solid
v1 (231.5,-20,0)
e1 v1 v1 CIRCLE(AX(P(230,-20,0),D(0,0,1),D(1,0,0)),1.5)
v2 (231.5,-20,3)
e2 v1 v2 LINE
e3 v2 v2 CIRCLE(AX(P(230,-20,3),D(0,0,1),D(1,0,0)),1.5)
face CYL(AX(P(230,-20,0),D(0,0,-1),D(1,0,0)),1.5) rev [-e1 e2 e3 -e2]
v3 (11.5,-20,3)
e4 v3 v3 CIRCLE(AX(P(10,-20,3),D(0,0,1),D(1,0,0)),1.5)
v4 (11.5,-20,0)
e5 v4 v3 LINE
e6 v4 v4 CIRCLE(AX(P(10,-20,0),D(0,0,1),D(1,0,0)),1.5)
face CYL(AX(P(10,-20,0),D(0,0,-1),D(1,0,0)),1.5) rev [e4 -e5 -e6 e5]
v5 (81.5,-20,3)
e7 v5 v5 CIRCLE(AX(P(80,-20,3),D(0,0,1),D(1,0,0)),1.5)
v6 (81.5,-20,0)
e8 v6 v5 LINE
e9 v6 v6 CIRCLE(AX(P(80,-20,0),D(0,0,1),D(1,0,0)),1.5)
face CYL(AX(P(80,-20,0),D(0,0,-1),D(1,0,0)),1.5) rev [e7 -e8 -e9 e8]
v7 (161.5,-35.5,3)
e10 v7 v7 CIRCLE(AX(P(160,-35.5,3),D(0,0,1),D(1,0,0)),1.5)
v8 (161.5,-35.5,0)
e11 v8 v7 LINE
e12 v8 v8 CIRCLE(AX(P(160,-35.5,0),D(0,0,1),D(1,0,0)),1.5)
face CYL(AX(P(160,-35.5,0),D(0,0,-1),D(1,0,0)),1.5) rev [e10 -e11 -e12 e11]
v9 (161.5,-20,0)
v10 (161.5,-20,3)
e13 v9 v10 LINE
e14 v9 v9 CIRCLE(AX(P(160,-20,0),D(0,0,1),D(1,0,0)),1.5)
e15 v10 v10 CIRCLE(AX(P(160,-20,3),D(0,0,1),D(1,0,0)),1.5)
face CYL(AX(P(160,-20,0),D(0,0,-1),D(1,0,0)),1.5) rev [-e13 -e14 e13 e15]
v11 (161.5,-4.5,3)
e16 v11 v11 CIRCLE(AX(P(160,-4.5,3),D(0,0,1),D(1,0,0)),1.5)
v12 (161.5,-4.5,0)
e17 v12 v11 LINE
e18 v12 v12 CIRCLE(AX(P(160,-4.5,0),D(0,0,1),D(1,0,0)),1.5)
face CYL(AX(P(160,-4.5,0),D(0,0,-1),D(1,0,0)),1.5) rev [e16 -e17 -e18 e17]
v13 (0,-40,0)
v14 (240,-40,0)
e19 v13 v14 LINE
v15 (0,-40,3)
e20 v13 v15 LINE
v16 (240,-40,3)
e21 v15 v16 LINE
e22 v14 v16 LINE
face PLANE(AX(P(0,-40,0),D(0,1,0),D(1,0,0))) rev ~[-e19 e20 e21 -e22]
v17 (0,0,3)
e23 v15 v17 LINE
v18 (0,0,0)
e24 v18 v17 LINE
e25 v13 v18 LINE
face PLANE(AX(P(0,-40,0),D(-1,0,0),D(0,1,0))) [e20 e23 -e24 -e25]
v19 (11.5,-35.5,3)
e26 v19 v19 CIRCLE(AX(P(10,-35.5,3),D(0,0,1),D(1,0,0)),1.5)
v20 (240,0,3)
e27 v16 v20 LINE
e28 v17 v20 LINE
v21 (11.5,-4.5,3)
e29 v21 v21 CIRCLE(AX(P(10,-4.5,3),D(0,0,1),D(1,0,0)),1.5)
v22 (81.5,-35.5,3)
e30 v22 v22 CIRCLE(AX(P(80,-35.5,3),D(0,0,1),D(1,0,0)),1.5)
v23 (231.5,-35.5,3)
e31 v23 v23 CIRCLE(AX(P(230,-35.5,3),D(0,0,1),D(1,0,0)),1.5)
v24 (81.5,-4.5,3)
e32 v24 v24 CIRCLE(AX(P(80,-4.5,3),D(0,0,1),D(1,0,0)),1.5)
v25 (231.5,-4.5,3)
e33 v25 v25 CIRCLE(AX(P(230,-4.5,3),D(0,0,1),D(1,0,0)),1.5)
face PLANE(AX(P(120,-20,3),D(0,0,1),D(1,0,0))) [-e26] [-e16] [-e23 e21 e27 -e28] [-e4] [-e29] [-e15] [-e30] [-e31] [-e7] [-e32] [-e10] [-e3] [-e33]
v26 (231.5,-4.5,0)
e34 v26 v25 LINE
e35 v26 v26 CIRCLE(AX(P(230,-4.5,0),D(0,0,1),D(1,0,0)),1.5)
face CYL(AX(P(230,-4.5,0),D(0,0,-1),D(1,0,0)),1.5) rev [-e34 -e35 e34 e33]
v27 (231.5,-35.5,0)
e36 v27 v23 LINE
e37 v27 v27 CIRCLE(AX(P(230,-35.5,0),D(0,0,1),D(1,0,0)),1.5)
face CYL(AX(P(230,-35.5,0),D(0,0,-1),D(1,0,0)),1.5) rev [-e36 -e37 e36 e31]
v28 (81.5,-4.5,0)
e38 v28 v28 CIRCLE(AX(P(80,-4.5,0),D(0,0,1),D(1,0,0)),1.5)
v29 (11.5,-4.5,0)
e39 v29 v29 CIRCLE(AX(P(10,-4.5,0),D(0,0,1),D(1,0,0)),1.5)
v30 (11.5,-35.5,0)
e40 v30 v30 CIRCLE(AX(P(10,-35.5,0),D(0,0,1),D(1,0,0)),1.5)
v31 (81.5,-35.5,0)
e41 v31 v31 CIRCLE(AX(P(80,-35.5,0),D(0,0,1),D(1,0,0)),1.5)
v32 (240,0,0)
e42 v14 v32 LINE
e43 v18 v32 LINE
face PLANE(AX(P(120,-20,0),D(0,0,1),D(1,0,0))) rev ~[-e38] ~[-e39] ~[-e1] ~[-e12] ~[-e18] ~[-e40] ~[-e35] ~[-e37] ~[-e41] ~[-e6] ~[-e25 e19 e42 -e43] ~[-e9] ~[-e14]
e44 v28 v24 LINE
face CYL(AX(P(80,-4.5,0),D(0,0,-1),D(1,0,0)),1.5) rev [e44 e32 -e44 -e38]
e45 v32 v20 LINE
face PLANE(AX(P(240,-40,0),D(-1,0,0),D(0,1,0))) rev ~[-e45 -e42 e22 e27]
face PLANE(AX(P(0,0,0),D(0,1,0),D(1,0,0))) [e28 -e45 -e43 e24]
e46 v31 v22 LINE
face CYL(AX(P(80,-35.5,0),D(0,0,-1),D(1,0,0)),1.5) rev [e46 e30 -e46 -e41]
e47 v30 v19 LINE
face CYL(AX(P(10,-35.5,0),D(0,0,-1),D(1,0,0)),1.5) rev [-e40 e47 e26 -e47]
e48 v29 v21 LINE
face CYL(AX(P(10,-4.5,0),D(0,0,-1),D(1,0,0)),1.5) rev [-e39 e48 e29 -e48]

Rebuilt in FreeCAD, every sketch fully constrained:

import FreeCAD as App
import Part
import Sketcher

V = App.Vector
Q = App.Units.Quantity

doc = App.newDocument("Part")
params = doc.addObject("Spreadsheet::Sheet", "Params")
for row, (alias, value) in enumerate([
    ("sketch1_diameter", "3 mm"),
    ("sketch1_width", "240 mm"),
    ("sketch1_height", "40 mm"),
    ("pad1_length", "3 mm"),
], start=1):
    params.set(f"A{row}", alias)
    params.set(f"B{row}", "=" + value)
    params.setAlias(f"B{row}", alias)

body = doc.addObject("PartDesign::Body", "Body")

sketch1 = body.newObject("Sketcher::SketchObject", "Sketch")
sketch1.AttachmentSupport = (doc.getObject("XY_Plane"), [""])
sketch1.MapMode = "FlatFace"
sketch1.addGeometry([
    Part.LineSegment(V(0, 0, 0), V(0, -40, 0)),
    Part.LineSegment(V(0, -40, 0), V(240, -40, 0)),
    Part.LineSegment(V(240, -40, 0), V(240, 0, 0)),
    Part.LineSegment(V(240, 0, 0), V(0, 0, 0)),
    Part.Circle(V(10, -35.5, 0), V(0, 0, 1), 1.5),
    Part.Circle(V(80, -35.5, 0), V(0, 0, 1), 1.5),
    Part.Circle(V(160, -35.5, 0), V(0, 0, 1), 1.5),
    Part.Circle(V(230, -35.5, 0), V(0, 0, 1), 1.5),
    Part.Circle(V(10, -20, 0), V(0, 0, 1), 1.5),
    Part.Circle(V(80, -20, 0), V(0, 0, 1), 1.5),
    Part.Circle(V(10, -4.5, 0), V(0, 0, 1), 1.5),
    Part.Circle(V(80, -4.5, 0), V(0, 0, 1), 1.5),
    Part.Circle(V(160, -20, 0), V(0, 0, 1), 1.5),
    Part.Circle(V(230, -20, 0), V(0, 0, 1), 1.5),
    Part.Circle(V(160, -4.5, 0), V(0, 0, 1), 1.5),
    Part.Circle(V(230, -4.5, 0), V(0, 0, 1), 1.5),
], False)
sketch1.addConstraint([
    Sketcher.Constraint("Coincident", 0, 2, 1, 1),
    Sketcher.Constraint("Coincident", 1, 2, 2, 1),
    Sketcher.Constraint("Coincident", 2, 2, 3, 1),
    Sketcher.Constraint("Coincident", 3, 2, 0, 1),
    Sketcher.Constraint("Vertical", 0),
    Sketcher.Constraint("Horizontal", 1),
    Sketcher.Constraint("Vertical", 2),
    Sketcher.Constraint("Horizontal", 3),
    Sketcher.Constraint("Coincident", 3, 2, -1, 1),
    Sketcher.Constraint("Equal", 4, 5),
    Sketcher.Constraint("Equal", 5, 6),
    Sketcher.Constraint("Equal", 6, 7),
    Sketcher.Constraint("Equal", 7, 8),
    Sketcher.Constraint("Equal", 8, 9),
    Sketcher.Constraint("Equal", 9, 10),
    Sketcher.Constraint("Equal", 10, 11),
    Sketcher.Constraint("Equal", 11, 12),
    Sketcher.Constraint("Equal", 12, 13),
    Sketcher.Constraint("Equal", 13, 14),
    Sketcher.Constraint("Equal", 14, 15),
    Sketcher.Constraint("Horizontal", 4, 3, 5, 3),
    Sketcher.Constraint("Horizontal", 5, 3, 6, 3),
    Sketcher.Constraint("Horizontal", 6, 3, 7, 3),
    Sketcher.Constraint("Horizontal", 8, 3, 9, 3),
    Sketcher.Constraint("Horizontal", 10, 3, 11, 3),
    Sketcher.Constraint("Horizontal", 9, 3, 12, 3),
    Sketcher.Constraint("Horizontal", 12, 3, 13, 3),
    Sketcher.Constraint("Horizontal", 11, 3, 14, 3),
    Sketcher.Constraint("Horizontal", 14, 3, 15, 3),
    Sketcher.Constraint("Vertical", 4, 3, 8, 3),
    Sketcher.Constraint("Vertical", 5, 3, 9, 3),
    Sketcher.Constraint("Vertical", 8, 3, 10, 3),
    Sketcher.Constraint("Vertical", 9, 3, 11, 3),
    Sketcher.Constraint("Vertical", 6, 3, 12, 3),
    Sketcher.Constraint("Vertical", 7, 3, 13, 3),
    Sketcher.Constraint("Vertical", 12, 3, 14, 3),
    Sketcher.Constraint("Vertical", 13, 3, 15, 3),
    Sketcher.Constraint("Diameter", 4, Q("3 mm")),
    Sketcher.Constraint("DistanceX", 1, 1, 1, 2, Q("240 mm")),
    Sketcher.Constraint("DistanceY", 0, 2, 0, 1, Q("40 mm")),
    Sketcher.Constraint("DistanceX", -1, 1, 4, 3, Q("10 mm")),
    Sketcher.Constraint("DistanceX", -1, 1, 5, 3, Q("80 mm")),
    Sketcher.Constraint("DistanceX", -1, 1, 6, 3, Q("160 mm")),
    Sketcher.Constraint("DistanceX", -1, 1, 7, 3, Q("230 mm")),
    Sketcher.Constraint("DistanceY", 8, 3, -1, 1, Q("20 mm")),
    Sketcher.Constraint("DistanceY", 4, 3, 10, 3, Q("31 mm")),
    Sketcher.Constraint("DistanceY", 4, 3, -1, 1, Q("35.5 mm")),
])
sketch1.setExpression("Constraints[37]", "Params.sketch1_diameter")
sketch1.setExpression("Constraints[38]", "Params.sketch1_width")
sketch1.setExpression("Constraints[39]", "Params.sketch1_height")
pad1 = body.newObject("PartDesign::Pad", "Pad")
pad1.Profile = sketch1
pad1.setExpression("Length", "Params.pad1_length")

doc.recompute()
